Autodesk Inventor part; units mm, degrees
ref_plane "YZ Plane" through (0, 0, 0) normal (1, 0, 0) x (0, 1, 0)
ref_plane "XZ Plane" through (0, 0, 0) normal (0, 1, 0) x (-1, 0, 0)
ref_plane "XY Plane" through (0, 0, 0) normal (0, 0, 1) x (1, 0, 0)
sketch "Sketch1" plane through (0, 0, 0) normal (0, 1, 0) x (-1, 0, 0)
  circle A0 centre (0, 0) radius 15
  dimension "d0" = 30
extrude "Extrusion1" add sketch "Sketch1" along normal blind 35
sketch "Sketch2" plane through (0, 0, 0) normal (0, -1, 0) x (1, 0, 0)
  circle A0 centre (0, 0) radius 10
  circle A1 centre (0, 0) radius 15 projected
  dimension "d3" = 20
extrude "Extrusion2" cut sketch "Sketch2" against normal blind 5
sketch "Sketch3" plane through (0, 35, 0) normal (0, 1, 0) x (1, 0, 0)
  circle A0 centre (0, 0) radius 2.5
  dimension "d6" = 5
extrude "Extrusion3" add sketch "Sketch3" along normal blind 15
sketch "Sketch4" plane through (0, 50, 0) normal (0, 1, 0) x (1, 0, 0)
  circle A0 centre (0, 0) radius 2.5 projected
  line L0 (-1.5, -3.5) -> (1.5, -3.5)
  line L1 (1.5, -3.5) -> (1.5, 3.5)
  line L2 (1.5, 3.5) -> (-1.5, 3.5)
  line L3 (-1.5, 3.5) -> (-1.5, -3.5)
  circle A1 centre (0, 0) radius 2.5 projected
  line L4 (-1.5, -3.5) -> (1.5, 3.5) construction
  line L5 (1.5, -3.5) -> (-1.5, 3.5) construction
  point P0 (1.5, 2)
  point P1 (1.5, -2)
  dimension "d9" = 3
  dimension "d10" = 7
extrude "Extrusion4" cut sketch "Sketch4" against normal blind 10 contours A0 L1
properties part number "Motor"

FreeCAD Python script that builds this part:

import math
import FreeCAD as App
import Part
import Sketcher
from FreeCAD import Vector

doc = App.newDocument("Part")
body = doc.addObject("PartDesign::Body", "Body")

# Sketch on XZ plane
sketch1 = doc.addObject("Sketcher::SketchObject", "Sketch")
body.addObject(sketch1)
sketch1.AttachmentSupport = (doc.XZ_Plane, [""])
sketch1.MapMode = "FlatFace"
sketch1.addGeometry(Part.Circle(Vector(0, 0, 0), Vector(0, 0, 1), 15), False)
sketch1.addConstraint([
    Sketcher.Constraint("Coincident", 0, 3, -1, 1),
    Sketcher.Constraint("Diameter", 0, 30.0),
])
pad1 = doc.addObject("PartDesign::Pad", "Pad")
body.addObject(pad1)
pad1.Profile = sketch1
pad1.Length = 35
pad1.Reversed = True

# Sketch on XZ plane
sketch2 = doc.addObject("Sketcher::SketchObject", "Sketch001")
body.addObject(sketch2)
sketch2.AttachmentSupport = (doc.XZ_Plane, [""])
sketch2.MapMode = "FlatFace"
sketch2.addGeometry([
    Part.Circle(Vector(0, 0, 0), Vector(0, 0, 1), 15),
    Part.Circle(Vector(0, 0, 0), Vector(0, 0, 1), 10),
], False)
sketch2.addConstraint([
    Sketcher.Constraint("Coincident", 0, 3, -1, 1),
    Sketcher.Constraint("Coincident", 1, 3, -1, 1),
    Sketcher.Constraint("Diameter", 1, 20.0),
    Sketcher.Constraint("Diameter", 0, 30.0),
])
pocket1 = doc.addObject("PartDesign::Pocket", "Pocket")
body.addObject(pocket1)
pocket1.Profile = sketch2
pocket1.Length = 5

# Sketch on XZ plane
sketch3 = doc.addObject("Sketcher::SketchObject", "Sketch002")
body.addObject(sketch3)
sketch3.AttachmentSupport = (doc.XZ_Plane, [""])
sketch3.MapMode = "FlatFace"
sketch3.AttachmentOffset = App.Placement(Vector(0, 0, -35), App.Rotation())
sketch3.addGeometry(Part.Circle(Vector(0, 0, 0), Vector(0, 0, 1), 2.5), False)
sketch3.addConstraint([
    Sketcher.Constraint("Coincident", 0, 3, -1, 1),
    Sketcher.Constraint("Diameter", 0, 5.0),
])
pad2 = doc.addObject("PartDesign::Pad", "Pad001")
body.addObject(pad2)
pad2.Profile = sketch3
pad2.Length = 15
pad2.Reversed = True

# Sketch on XZ plane
sketch4 = doc.addObject("Sketcher::SketchObject", "Sketch003")
body.addObject(sketch4)
sketch4.AttachmentSupport = (doc.XZ_Plane, [""])
sketch4.MapMode = "FlatFace"
sketch4.AttachmentOffset = App.Placement(Vector(0, 0, -50), App.Rotation())
sketch4.addGeometry([
    Part.ArcOfCircle(Part.Circle(Vector(0, 0, 0), Vector(0, 0, 1), 2.5), math.radians(-53.130102), math.radians(53.130102)),
    Part.LineSegment(Vector(1.5, -2, 0), Vector(1.5, 2, 0)),
], False)
sketch4.addConstraint([
    Sketcher.Constraint("Coincident", 0, 1, 1, 1),
    Sketcher.Constraint("Coincident", 1, 2, 0, 2),
    Sketcher.Constraint("Vertical", 1),
    Sketcher.Constraint("Coincident", 0, 3, -1, 1),
    Sketcher.Constraint("Radius", 0, 2.5),
    Sketcher.Constraint("DistanceY", 1, 1, 1, 2, 4.0),
])
pocket2 = doc.addObject("PartDesign::Pocket", "Pocket001")
body.addObject(pocket2)
pocket2.Profile = sketch4
pocket2.Length = 10
pocket2.Reversed = True

doc.recompute()
